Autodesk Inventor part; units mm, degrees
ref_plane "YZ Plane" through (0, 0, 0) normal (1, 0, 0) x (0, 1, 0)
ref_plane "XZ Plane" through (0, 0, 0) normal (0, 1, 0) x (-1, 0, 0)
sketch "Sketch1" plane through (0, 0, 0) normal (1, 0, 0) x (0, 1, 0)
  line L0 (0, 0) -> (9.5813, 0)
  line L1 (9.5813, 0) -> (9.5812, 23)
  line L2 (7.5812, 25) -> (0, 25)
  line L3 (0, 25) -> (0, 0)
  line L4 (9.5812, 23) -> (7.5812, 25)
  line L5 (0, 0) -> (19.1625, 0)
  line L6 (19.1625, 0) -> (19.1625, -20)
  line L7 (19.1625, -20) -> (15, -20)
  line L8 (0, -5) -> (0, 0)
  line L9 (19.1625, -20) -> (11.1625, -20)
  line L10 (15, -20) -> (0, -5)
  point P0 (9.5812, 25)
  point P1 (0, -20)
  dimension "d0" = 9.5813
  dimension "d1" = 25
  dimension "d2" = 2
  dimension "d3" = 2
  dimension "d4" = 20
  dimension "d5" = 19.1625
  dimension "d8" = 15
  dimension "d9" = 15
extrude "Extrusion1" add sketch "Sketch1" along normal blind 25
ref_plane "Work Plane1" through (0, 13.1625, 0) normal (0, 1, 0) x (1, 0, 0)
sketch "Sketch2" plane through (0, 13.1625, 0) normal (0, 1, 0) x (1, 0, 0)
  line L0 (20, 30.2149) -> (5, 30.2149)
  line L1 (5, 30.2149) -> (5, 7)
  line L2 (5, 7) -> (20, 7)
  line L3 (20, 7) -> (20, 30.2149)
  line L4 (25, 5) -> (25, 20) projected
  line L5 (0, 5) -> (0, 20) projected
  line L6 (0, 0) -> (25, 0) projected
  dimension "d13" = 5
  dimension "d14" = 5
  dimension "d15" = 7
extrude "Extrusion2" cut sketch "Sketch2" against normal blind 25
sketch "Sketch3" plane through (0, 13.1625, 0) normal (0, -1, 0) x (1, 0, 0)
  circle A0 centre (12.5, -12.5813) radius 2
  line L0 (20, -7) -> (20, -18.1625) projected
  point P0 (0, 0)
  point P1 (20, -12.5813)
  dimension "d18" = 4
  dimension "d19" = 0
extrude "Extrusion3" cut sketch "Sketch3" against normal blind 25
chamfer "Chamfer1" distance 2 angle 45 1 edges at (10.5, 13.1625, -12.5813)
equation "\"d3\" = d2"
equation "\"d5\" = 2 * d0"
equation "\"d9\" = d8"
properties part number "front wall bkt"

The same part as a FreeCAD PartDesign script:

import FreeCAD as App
import Part
import Sketcher


def edges_at(feature, points):
    """Names of the edges that pass closest to the given points."""
    edges = feature.Shape.Edges
    near = lambda p: min(range(len(edges)), key=lambda i: edges[i].distToShape(Part.Vertex(*p))[0])
    return sorted({f"Edge{near(p) + 1}" for p in points})


def add_polygon(sketch, points):
    """Adds a closed chain of lines whose ends are joined by coincident constraints."""
    first, n = sketch.GeometryCount, len(points)
    for a, b in zip(points, points[1:] + points[:1]):
        sketch.addGeometry(Part.LineSegment(App.Vector(*a, 0), App.Vector(*b, 0)), False)
    for i in range(n):
        sketch.addConstraint(Sketcher.Constraint("Coincident", first + i, 2, first + (i + 1) % n, 1))

doc = App.newDocument("Part")
body = doc.addObject("PartDesign::Body", "Body")

sketch1 = body.newObject("Sketcher::SketchObject", "Sketch")
sketch1.AttachmentSupport = (doc.getObject("YZ_Plane"), [""])
sketch1.MapMode = "FlatFace"
add_polygon(sketch1, [(0, 25), (0, -5), (15, -20), (19.1625, -20), (19.1625, 0), (9.5813, 0), (9.5812, 23), (7.5812, 25)])
sketch1.addConstraint(Sketcher.Constraint("Vertical", 0))
sketch1.addConstraint(Sketcher.Constraint("Horizontal", 2))
sketch1.addConstraint(Sketcher.Constraint("Vertical", 3))
sketch1.addConstraint(Sketcher.Constraint("Horizontal", 4))
sketch1.addConstraint(Sketcher.Constraint("Vertical", 5))
sketch1.addConstraint(Sketcher.Constraint("Horizontal", 7))
sketch1.addConstraint(Sketcher.Constraint("PointOnObject", 0, 2, -2))
sketch1.addConstraint(Sketcher.Constraint("PointOnObject", 3, 2, -1))
sketch1.addConstraint(Sketcher.Constraint("Parallel", 1, 6))
sketch1.addConstraint(Sketcher.Constraint("DistanceY", 3, 1, 3, 2, 20.0))
sketch1.addConstraint(Sketcher.Constraint("DistanceX", -1, 1, 1, 2, 15.0))
sketch1.addConstraint(Sketcher.Constraint("DistanceY", -1, 1, 6, 2, 25.0))
sketch1.addConstraint(Sketcher.Constraint("DistanceY", 1, 2, 0, 2, 15.0))
sketch1.addConstraint(Sketcher.Constraint("DistanceX", 6, 2, 5, 2, 2.0))
sketch1.addConstraint(Sketcher.Constraint("DistanceX", 4, 2, 4, 1, 9.5812))
sketch1.addConstraint(Sketcher.Constraint("DistanceX", -1, 1, 2, 2, 19.1625))
pad1 = body.newObject("PartDesign::Pad", "Pad")
pad1.Profile = sketch1
pad1.Length = 25

sketch2 = body.newObject("Sketcher::SketchObject", "Sketch001")
sketch2.AttachmentSupport = (doc.getObject("XZ_Plane"), [""])
sketch2.MapMode = "FlatFace"
sketch2.AttachmentOffset = App.Placement(App.Vector(0, 0, -13.1625), App.Rotation())
add_polygon(sketch2, [(20, -7), (20, -30.2149), (5, -30.2149), (5, -7)])
sketch2.addConstraint(Sketcher.Constraint("Vertical", 0))
sketch2.addConstraint(Sketcher.Constraint("Horizontal", 1))
sketch2.addConstraint(Sketcher.Constraint("Vertical", 2))
sketch2.addConstraint(Sketcher.Constraint("Horizontal", 3))
sketch2.addConstraint(Sketcher.Constraint("DistanceX", -1, 1, 1, 2, 5.0))
sketch2.addConstraint(Sketcher.Constraint("DistanceY", 2, 2, -1, 1, 7.0))
sketch2.addConstraint(Sketcher.Constraint("DistanceX", 1, 2, 1, 1, 15.0))
sketch2.addConstraint(Sketcher.Constraint("DistanceY", 0, 2, 0, 1, 23.215))
pocket1 = body.newObject("PartDesign::Pocket", "Pocket")
pocket1.Profile = sketch2
pocket1.Length = 25
pocket1.Reversed = True

sketch3 = body.newObject("Sketcher::SketchObject", "Sketch002")
sketch3.AttachmentSupport = (doc.getObject("XZ_Plane"), [""])
sketch3.MapMode = "FlatFace"
sketch3.AttachmentOffset = App.Placement(App.Vector(0, 0, -13.1625), App.Rotation())
sketch3.addGeometry(Part.Circle(App.Vector(12.5, -12.5813, 0), App.Vector(0, 0, 1), 2), False)
sketch3.addConstraint(Sketcher.Constraint("Diameter", 0, 4.0))
sketch3.addConstraint(Sketcher.Constraint("DistanceX", -1, 1, 0, 3, 12.5))
sketch3.addConstraint(Sketcher.Constraint("DistanceY", 0, 3, -1, 1, 12.5813))
pocket2 = body.newObject("PartDesign::Pocket", "Pocket001")
pocket2.Profile = sketch3
pocket2.Length = 25
doc.recompute()

chamfer = body.newObject("PartDesign::Chamfer", "Chamfer")
chamfer.Base = (pocket2, edges_at(pocket2, [(10.5, 13.162, -12.581)]))
chamfer.Size = 2

doc.recompute()
